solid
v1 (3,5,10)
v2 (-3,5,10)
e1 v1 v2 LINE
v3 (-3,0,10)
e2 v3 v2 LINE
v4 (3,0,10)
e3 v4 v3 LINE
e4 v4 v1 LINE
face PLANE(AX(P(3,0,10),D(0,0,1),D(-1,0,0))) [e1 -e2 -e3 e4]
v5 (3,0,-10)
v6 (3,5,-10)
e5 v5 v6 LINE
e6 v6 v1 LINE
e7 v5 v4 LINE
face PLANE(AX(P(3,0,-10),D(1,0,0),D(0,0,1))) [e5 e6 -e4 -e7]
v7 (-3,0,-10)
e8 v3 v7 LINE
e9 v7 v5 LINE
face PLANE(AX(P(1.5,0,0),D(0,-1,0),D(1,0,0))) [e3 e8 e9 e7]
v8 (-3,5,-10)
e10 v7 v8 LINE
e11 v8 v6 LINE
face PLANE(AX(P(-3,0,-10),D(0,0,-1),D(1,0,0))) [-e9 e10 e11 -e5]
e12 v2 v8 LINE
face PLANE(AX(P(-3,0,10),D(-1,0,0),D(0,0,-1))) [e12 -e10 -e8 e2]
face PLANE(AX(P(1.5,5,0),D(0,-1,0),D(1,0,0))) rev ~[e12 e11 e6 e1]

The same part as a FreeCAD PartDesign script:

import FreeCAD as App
import Part
import Sketcher

V = App.Vector


def add_polygon(sketch, points):
    """Adds a closed chain of lines whose ends are joined by coincident constraints."""
    first, n = sketch.GeometryCount, len(points)
    for a, b in zip(points, points[1:] + points[:1]):
        sketch.addGeometry(Part.LineSegment(App.Vector(*a, 0), App.Vector(*b, 0)), False)
    for i in range(n):
        sketch.addConstraint(Sketcher.Constraint("Coincident", first + i, 2, first + (i + 1) % n, 1))

doc = App.newDocument("Part")
body = doc.addObject("PartDesign::Body", "Body")

# Sketch on XZ plane
sketch1 = doc.addObject("Sketcher::SketchObject", "Sketch")
body.addObject(sketch1)
sketch1.AttachmentSupport = (doc.XZ_Plane, [""])
sketch1.MapMode = "FlatFace"
add_polygon(sketch1, [(3, -10), (3, 10), (-3, 10), (-3, -10)])  # lines 0-3
sketch1.addConstraint([
    Sketcher.Constraint("Vertical", 0),
    Sketcher.Constraint("Horizontal", 1),
    Sketcher.Constraint("Vertical", 2),
    Sketcher.Constraint("Horizontal", 3),
    Sketcher.Constraint("Symmetric", 0, 2, 2, 2, -1, 1),
    Sketcher.Constraint("DistanceX", 1, 2, 1, 1, 6.0),
    Sketcher.Constraint("DistanceY", 0, 1, 0, 2, 20.0),
])
pad1 = doc.addObject("PartDesign::Pad", "Pad")
body.addObject(pad1)
pad1.Profile = sketch1
pad1.Length = 5
pad1.Reversed = True

doc.recompute()
